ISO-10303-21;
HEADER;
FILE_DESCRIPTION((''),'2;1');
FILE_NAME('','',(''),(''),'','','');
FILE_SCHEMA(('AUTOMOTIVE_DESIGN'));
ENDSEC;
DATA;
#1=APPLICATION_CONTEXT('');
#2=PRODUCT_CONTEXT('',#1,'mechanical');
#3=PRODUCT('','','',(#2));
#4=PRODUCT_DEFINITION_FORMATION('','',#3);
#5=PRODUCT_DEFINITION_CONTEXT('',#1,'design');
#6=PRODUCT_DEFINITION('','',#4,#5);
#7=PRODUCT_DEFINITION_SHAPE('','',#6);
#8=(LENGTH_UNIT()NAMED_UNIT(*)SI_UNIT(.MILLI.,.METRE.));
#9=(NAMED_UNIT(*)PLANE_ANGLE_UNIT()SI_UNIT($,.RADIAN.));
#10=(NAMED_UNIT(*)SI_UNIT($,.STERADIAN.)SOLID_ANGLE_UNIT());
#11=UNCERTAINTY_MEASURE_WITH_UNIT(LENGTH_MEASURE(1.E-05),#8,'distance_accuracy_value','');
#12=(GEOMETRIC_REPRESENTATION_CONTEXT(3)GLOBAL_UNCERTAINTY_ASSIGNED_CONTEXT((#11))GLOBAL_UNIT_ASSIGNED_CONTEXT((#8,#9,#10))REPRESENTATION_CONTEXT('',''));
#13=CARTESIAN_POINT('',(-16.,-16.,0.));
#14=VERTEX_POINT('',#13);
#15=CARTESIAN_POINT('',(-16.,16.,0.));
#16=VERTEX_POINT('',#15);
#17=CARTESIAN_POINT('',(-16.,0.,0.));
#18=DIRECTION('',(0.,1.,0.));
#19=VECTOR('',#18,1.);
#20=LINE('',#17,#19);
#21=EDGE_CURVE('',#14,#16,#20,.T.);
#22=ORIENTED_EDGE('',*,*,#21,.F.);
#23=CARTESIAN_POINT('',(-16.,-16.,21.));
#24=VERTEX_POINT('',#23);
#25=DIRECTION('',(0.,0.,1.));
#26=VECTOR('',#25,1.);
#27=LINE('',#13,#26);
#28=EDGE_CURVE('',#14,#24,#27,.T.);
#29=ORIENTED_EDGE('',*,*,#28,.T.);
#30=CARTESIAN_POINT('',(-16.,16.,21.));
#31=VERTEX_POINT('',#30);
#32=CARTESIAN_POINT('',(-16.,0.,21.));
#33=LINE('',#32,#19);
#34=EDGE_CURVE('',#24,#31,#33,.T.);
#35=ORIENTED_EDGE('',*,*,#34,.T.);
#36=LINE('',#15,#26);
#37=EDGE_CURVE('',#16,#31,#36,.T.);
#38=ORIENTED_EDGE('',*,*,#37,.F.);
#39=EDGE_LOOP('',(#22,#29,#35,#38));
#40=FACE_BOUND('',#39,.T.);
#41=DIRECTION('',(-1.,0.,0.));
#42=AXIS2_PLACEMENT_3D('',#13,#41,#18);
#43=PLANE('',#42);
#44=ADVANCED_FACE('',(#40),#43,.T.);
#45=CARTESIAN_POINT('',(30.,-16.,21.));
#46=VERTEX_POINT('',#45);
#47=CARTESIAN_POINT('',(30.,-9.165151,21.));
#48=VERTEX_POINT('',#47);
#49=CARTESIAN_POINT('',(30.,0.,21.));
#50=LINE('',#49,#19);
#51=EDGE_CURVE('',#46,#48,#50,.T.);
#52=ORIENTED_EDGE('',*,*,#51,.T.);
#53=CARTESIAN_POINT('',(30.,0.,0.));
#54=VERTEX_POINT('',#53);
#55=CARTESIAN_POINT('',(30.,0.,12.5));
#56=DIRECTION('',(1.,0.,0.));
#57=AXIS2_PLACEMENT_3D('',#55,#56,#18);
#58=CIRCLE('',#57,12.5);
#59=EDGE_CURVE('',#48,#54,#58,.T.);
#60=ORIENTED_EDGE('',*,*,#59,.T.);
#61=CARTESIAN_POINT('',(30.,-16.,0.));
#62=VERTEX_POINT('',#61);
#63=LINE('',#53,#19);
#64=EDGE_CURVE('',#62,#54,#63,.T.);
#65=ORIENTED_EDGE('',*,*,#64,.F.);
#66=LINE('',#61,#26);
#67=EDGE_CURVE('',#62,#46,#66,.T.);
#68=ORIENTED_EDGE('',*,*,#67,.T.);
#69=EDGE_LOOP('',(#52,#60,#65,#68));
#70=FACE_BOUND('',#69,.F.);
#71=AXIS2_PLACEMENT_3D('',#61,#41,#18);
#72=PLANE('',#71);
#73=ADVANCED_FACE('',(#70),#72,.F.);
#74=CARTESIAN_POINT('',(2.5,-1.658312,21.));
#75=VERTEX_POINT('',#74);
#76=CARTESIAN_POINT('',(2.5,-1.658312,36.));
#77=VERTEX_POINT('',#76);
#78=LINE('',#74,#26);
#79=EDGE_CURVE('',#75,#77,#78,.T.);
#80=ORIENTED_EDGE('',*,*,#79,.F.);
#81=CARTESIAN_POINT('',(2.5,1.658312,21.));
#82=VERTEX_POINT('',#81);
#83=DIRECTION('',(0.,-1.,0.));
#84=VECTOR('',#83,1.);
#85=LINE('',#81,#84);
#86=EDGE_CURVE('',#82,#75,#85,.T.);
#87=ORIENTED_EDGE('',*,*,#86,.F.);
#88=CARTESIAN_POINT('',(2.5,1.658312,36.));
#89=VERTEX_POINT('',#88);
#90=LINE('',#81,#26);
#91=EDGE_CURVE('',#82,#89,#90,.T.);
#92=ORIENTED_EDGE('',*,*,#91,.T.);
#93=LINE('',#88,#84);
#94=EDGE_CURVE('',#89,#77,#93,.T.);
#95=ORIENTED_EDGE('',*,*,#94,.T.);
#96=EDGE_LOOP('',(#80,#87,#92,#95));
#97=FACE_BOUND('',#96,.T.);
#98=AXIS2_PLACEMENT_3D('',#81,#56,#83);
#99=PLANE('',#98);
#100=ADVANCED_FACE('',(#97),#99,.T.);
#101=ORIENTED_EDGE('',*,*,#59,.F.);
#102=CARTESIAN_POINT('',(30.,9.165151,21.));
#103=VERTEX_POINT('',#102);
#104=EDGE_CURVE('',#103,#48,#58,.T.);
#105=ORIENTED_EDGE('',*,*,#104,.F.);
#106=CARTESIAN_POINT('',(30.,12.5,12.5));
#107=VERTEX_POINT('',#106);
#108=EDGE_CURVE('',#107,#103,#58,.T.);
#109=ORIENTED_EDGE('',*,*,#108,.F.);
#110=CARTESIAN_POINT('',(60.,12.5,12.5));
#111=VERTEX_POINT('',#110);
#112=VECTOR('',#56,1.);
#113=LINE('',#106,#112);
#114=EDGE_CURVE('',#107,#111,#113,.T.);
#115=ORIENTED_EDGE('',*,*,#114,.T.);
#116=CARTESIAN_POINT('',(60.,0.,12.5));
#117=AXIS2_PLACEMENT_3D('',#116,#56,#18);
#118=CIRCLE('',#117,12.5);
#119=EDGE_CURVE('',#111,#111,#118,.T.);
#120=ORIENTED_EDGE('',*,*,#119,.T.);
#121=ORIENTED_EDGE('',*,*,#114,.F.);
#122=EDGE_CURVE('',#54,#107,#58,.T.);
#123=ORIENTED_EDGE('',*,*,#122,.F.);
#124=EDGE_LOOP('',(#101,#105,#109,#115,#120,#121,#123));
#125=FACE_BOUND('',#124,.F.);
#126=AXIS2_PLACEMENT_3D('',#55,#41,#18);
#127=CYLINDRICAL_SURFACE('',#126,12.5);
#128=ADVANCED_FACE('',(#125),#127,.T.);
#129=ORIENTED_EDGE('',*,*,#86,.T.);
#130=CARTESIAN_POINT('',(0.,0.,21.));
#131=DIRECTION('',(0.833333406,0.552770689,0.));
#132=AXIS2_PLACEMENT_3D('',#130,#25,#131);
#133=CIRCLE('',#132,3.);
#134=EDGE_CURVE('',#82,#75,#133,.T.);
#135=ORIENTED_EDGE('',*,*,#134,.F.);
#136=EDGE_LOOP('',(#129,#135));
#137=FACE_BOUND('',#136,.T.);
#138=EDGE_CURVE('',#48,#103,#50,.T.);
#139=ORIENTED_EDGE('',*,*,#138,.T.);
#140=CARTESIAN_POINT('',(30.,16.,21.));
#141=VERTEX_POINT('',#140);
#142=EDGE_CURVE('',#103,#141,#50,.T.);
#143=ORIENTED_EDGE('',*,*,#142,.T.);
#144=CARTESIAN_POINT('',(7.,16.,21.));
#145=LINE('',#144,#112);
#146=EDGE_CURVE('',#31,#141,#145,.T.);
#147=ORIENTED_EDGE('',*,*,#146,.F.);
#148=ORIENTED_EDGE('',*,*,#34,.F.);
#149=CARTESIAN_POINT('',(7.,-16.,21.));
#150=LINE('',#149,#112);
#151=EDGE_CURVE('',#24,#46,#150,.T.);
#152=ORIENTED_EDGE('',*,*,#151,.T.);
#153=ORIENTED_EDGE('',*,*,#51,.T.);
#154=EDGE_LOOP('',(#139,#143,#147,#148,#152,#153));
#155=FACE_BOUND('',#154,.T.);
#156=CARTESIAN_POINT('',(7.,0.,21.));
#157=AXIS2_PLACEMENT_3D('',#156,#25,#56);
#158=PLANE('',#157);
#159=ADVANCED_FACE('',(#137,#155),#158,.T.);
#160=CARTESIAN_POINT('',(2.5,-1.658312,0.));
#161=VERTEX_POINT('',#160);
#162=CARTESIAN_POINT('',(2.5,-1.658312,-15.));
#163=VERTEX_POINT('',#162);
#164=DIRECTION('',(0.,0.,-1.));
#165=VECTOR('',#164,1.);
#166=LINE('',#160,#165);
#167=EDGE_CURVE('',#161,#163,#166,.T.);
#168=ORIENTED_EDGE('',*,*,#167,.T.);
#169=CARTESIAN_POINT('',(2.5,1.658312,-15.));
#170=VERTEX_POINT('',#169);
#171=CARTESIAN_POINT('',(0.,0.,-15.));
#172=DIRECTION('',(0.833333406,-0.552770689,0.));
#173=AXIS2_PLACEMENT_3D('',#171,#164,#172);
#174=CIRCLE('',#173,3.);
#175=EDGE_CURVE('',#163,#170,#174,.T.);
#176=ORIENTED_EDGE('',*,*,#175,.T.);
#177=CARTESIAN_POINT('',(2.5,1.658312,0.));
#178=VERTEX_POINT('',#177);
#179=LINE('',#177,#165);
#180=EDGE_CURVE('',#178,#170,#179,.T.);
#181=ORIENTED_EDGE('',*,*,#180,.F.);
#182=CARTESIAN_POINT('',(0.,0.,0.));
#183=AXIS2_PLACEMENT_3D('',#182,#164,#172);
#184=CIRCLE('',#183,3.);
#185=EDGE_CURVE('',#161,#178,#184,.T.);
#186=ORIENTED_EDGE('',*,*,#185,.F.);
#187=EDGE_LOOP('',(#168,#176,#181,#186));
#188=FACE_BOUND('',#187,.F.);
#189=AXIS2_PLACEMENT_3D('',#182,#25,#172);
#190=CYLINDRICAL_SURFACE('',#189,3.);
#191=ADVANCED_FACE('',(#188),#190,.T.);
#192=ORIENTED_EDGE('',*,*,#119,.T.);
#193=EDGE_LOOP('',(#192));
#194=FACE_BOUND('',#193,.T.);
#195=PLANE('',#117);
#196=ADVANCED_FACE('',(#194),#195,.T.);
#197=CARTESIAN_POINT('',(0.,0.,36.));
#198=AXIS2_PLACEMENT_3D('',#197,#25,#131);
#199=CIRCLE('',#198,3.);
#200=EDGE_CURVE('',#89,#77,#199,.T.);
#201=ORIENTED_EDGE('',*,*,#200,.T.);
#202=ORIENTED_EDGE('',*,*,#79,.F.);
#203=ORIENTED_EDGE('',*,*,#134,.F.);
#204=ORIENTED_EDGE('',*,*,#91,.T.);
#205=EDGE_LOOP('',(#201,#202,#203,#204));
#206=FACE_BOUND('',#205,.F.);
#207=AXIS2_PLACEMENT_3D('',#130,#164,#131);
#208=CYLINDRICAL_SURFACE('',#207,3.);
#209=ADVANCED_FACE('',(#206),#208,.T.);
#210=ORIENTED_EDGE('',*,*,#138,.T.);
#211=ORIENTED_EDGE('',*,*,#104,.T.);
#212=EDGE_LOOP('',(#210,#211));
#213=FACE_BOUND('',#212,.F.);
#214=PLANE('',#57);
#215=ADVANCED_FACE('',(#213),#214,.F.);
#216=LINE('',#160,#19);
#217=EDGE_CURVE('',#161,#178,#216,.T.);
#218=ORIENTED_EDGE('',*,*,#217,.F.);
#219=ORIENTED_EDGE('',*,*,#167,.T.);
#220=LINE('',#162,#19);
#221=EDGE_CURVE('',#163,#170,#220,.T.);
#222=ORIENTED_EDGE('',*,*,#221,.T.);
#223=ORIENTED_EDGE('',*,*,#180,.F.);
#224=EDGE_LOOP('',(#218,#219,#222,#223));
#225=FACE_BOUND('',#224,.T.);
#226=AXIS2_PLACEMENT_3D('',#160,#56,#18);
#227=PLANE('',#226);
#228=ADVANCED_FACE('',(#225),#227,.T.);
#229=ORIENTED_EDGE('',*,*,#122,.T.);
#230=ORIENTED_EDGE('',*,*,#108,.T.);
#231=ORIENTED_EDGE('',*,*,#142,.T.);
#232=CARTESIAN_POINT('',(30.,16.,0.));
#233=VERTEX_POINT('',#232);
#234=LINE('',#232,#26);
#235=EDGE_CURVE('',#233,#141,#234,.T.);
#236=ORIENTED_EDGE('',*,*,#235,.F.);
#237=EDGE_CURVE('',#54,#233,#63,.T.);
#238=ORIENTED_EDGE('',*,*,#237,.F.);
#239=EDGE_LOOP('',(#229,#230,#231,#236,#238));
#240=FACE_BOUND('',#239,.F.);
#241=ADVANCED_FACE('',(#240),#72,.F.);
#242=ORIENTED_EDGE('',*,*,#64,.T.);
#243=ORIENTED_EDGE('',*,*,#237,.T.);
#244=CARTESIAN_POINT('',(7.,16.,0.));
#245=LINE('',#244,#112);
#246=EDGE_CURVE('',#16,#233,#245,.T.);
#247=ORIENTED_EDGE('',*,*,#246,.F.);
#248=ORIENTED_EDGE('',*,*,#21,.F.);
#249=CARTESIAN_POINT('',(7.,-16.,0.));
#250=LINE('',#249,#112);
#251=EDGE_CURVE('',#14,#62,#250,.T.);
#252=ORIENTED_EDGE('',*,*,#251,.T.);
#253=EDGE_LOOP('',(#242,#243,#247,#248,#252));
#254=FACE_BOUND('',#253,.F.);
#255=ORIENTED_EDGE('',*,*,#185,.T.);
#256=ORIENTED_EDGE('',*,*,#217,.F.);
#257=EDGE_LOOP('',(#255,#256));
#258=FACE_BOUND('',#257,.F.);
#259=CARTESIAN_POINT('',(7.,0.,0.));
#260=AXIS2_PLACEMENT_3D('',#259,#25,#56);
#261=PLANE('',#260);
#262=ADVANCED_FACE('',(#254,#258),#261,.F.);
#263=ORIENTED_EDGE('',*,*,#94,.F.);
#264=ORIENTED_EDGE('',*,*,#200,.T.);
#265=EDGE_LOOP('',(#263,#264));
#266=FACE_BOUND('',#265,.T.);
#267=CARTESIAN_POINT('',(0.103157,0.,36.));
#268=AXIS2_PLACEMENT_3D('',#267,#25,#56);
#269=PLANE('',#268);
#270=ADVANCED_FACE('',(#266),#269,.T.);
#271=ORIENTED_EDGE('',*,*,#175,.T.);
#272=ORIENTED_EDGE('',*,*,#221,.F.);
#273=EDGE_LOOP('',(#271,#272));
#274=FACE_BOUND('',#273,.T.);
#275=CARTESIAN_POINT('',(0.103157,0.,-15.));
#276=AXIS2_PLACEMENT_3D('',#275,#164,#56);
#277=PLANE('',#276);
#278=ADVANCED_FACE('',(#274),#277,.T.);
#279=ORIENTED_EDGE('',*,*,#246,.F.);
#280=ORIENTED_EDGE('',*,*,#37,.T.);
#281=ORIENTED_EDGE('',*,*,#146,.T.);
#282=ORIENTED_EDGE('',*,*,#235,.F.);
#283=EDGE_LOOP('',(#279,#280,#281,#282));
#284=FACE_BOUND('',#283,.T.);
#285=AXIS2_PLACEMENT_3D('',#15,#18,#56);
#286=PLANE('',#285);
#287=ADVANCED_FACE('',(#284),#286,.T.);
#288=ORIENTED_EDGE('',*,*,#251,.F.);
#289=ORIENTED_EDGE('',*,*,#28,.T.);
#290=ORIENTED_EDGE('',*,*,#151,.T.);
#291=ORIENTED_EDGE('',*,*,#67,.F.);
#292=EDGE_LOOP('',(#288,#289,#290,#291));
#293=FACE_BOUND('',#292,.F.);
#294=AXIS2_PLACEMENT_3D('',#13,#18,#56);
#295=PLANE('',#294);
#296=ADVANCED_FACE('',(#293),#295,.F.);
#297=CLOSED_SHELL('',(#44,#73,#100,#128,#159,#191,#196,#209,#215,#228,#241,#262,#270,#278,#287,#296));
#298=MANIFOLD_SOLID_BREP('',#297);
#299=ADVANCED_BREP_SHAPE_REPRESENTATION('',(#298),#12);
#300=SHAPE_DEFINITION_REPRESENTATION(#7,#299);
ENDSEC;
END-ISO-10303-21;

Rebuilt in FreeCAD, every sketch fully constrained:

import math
import FreeCAD as App
import Part
import Sketcher
Q = App.Units.Quantity


def add_polygon(sketch, points):
    """Adds a closed chain of lines whose ends are joined by coincident constraints."""
    first, n = sketch.GeometryCount, len(points)
    for a, b in zip(points, points[1:] + points[:1]):
        sketch.addGeometry(Part.LineSegment(App.Vector(*a, 0), App.Vector(*b, 0)), False)
    for i in range(n):
        sketch.addConstraint(Sketcher.Constraint("Coincident", first + i, 2, first + (i + 1) % n, 1))

doc = App.newDocument("Part")
params = doc.addObject("Spreadsheet::Sheet", "Params")
for row, (alias, value) in enumerate([
    ("sketch1_width", "46 mm"),
    ("sketch1_height", "32 mm"),
    ("pad1_length", "21 mm"),
    ("sketch2_diameter", "25 mm"),
    ("pad2_length", "30 mm"),
    ("sketch3_radius", "3 mm"),
    ("pad3_length", "15 mm"),
    ("sketch4_radius", "3 mm"),
    ("pad4_length", "15 mm"),
], start=1):
    params.set(f"A{row}", alias)
    params.set(f"B{row}", "=" + value)
    params.setAlias(f"B{row}", alias)

body = doc.addObject("PartDesign::Body", "Body")

# Sketch on XY plane
sketch1 = body.newObject("Sketcher::SketchObject", "Sketch")
sketch1.AttachmentSupport = (doc.getObject("XY_Plane"), [""])
sketch1.MapMode = "FlatFace"
add_polygon(sketch1, [(-16, 16), (-16, -16), (30, -16), (30, 16)])  # lines 0-3
sketch1.addConstraint(Sketcher.Constraint("Vertical", 0))
sketch1.addConstraint(Sketcher.Constraint("Horizontal", 1))
sketch1.addConstraint(Sketcher.Constraint("Vertical", 2))
sketch1.addConstraint(Sketcher.Constraint("Horizontal", 3))
sketch1.addConstraint(Sketcher.Constraint("DistanceX", 1, 1, 1, 2, Q("46 mm")))
sketch1.addConstraint(Sketcher.Constraint("DistanceY", 0, 2, 0, 1, Q("32 mm")))
sketch1.addConstraint(Sketcher.Constraint("DistanceX", 0, 2, -1, 1, Q("16 mm")))
sketch1.addConstraint(Sketcher.Constraint("DistanceY", 0, 2, -1, 1, Q("16 mm")))
sketch1.setExpression("Constraints[8]", "Params.sketch1_width")
sketch1.setExpression("Constraints[9]", "Params.sketch1_height")
pad1 = body.newObject("PartDesign::Pad", "Pad")
pad1.Profile = sketch1
pad1.setExpression("Length", "Params.pad1_length")

# Sketch on YZ plane
sketch2 = body.newObject("Sketcher::SketchObject", "Sketch001")
sketch2.AttachmentSupport = (doc.getObject("YZ_Plane"), [""])
sketch2.MapMode = "FlatFace"
sketch2.AttachmentOffset = App.Placement(App.Vector(0, 0, 30), App.Rotation())
sketch2.addGeometry(Part.Circle(App.Vector(0, 12.5, 0), App.Vector(0, 0, 1), 12.5), False)
sketch2.addConstraint(Sketcher.Constraint("PointOnObject", 0, 3, -2))
sketch2.addConstraint(Sketcher.Constraint("Diameter", 0, Q("25 mm")))
sketch2.addConstraint(Sketcher.Constraint("DistanceY", -1, 1, 0, 3, Q("12.5 mm")))
sketch2.setExpression("Constraints[1]", "Params.sketch2_diameter")
pad2 = body.newObject("PartDesign::Pad", "Pad001")
pad2.Profile = sketch2
pad2.setExpression("Length", "Params.pad2_length")

# Sketch on XY plane
sketch3 = body.newObject("Sketcher::SketchObject", "Sketch002")
sketch3.AttachmentSupport = (doc.getObject("XY_Plane"), [""])
sketch3.MapMode = "FlatFace"
sketch3.addGeometry(Part.ArcOfCircle(Part.Circle(App.Vector(0, 0, 0), App.Vector(0, 0, 1), 3), math.radians(33.557302), math.radians(326.442698)), False)
sketch3.addGeometry(Part.LineSegment(App.Vector(2.5, 1.658312, 0), App.Vector(2.5, -1.658312, 0)), False)
sketch3.addConstraint(Sketcher.Constraint("Coincident", 0, 1, 1, 1))
sketch3.addConstraint(Sketcher.Constraint("Coincident", 1, 2, 0, 2))
sketch3.addConstraint(Sketcher.Constraint("Vertical", 1))
sketch3.addConstraint(Sketcher.Constraint("Coincident", 0, 3, -1, 1))
sketch3.addConstraint(Sketcher.Constraint("Radius", 0, Q("3 mm")))
sketch3.addConstraint(Sketcher.Constraint("DistanceX", -1, 1, 0, 1, Q("2.5 mm")))
sketch3.setExpression("Constraints[4]", "Params.sketch3_radius")
pad3 = body.newObject("PartDesign::Pad", "Pad002")
pad3.Profile = sketch3
pad3.setExpression("Length", "Params.pad3_length")
pad3.Reversed = True

# Sketch on XY plane
sketch4 = body.newObject("Sketcher::SketchObject", "Sketch003")
sketch4.AttachmentSupport = (doc.getObject("XY_Plane"), [""])
sketch4.MapMode = "FlatFace"
sketch4.AttachmentOffset = App.Placement(App.Vector(0, 0, 21), App.Rotation())
sketch4.addGeometry(Part.ArcOfCircle(Part.Circle(App.Vector(0, 0, 0), App.Vector(0, 0, 1), 3), math.radians(33.557302), math.radians(326.442698)), False)
sketch4.addGeometry(Part.LineSegment(App.Vector(2.5, -1.658312, 0), App.Vector(2.5, 1.658312, 0)), False)
sketch4.addConstraint(Sketcher.Constraint("Coincident", 0, 1, 1, 2))
sketch4.addConstraint(Sketcher.Constraint("Coincident", 1, 1, 0, 2))
sketch4.addConstraint(Sketcher.Constraint("Vertical", 1))
sketch4.addConstraint(Sketcher.Constraint("Coincident", 0, 3, -1, 1))
sketch4.addConstraint(Sketcher.Constraint("Radius", 0, Q("3 mm")))
sketch4.addConstraint(Sketcher.Constraint("DistanceX", -1, 1, 0, 1, Q("2.5 mm")))
sketch4.setExpression("Constraints[4]", "Params.sketch4_radius")
pad4 = body.newObject("PartDesign::Pad", "Pad003")
pad4.Profile = sketch4
pad4.setExpression("Length", "Params.pad4_length")

doc.recompute()
